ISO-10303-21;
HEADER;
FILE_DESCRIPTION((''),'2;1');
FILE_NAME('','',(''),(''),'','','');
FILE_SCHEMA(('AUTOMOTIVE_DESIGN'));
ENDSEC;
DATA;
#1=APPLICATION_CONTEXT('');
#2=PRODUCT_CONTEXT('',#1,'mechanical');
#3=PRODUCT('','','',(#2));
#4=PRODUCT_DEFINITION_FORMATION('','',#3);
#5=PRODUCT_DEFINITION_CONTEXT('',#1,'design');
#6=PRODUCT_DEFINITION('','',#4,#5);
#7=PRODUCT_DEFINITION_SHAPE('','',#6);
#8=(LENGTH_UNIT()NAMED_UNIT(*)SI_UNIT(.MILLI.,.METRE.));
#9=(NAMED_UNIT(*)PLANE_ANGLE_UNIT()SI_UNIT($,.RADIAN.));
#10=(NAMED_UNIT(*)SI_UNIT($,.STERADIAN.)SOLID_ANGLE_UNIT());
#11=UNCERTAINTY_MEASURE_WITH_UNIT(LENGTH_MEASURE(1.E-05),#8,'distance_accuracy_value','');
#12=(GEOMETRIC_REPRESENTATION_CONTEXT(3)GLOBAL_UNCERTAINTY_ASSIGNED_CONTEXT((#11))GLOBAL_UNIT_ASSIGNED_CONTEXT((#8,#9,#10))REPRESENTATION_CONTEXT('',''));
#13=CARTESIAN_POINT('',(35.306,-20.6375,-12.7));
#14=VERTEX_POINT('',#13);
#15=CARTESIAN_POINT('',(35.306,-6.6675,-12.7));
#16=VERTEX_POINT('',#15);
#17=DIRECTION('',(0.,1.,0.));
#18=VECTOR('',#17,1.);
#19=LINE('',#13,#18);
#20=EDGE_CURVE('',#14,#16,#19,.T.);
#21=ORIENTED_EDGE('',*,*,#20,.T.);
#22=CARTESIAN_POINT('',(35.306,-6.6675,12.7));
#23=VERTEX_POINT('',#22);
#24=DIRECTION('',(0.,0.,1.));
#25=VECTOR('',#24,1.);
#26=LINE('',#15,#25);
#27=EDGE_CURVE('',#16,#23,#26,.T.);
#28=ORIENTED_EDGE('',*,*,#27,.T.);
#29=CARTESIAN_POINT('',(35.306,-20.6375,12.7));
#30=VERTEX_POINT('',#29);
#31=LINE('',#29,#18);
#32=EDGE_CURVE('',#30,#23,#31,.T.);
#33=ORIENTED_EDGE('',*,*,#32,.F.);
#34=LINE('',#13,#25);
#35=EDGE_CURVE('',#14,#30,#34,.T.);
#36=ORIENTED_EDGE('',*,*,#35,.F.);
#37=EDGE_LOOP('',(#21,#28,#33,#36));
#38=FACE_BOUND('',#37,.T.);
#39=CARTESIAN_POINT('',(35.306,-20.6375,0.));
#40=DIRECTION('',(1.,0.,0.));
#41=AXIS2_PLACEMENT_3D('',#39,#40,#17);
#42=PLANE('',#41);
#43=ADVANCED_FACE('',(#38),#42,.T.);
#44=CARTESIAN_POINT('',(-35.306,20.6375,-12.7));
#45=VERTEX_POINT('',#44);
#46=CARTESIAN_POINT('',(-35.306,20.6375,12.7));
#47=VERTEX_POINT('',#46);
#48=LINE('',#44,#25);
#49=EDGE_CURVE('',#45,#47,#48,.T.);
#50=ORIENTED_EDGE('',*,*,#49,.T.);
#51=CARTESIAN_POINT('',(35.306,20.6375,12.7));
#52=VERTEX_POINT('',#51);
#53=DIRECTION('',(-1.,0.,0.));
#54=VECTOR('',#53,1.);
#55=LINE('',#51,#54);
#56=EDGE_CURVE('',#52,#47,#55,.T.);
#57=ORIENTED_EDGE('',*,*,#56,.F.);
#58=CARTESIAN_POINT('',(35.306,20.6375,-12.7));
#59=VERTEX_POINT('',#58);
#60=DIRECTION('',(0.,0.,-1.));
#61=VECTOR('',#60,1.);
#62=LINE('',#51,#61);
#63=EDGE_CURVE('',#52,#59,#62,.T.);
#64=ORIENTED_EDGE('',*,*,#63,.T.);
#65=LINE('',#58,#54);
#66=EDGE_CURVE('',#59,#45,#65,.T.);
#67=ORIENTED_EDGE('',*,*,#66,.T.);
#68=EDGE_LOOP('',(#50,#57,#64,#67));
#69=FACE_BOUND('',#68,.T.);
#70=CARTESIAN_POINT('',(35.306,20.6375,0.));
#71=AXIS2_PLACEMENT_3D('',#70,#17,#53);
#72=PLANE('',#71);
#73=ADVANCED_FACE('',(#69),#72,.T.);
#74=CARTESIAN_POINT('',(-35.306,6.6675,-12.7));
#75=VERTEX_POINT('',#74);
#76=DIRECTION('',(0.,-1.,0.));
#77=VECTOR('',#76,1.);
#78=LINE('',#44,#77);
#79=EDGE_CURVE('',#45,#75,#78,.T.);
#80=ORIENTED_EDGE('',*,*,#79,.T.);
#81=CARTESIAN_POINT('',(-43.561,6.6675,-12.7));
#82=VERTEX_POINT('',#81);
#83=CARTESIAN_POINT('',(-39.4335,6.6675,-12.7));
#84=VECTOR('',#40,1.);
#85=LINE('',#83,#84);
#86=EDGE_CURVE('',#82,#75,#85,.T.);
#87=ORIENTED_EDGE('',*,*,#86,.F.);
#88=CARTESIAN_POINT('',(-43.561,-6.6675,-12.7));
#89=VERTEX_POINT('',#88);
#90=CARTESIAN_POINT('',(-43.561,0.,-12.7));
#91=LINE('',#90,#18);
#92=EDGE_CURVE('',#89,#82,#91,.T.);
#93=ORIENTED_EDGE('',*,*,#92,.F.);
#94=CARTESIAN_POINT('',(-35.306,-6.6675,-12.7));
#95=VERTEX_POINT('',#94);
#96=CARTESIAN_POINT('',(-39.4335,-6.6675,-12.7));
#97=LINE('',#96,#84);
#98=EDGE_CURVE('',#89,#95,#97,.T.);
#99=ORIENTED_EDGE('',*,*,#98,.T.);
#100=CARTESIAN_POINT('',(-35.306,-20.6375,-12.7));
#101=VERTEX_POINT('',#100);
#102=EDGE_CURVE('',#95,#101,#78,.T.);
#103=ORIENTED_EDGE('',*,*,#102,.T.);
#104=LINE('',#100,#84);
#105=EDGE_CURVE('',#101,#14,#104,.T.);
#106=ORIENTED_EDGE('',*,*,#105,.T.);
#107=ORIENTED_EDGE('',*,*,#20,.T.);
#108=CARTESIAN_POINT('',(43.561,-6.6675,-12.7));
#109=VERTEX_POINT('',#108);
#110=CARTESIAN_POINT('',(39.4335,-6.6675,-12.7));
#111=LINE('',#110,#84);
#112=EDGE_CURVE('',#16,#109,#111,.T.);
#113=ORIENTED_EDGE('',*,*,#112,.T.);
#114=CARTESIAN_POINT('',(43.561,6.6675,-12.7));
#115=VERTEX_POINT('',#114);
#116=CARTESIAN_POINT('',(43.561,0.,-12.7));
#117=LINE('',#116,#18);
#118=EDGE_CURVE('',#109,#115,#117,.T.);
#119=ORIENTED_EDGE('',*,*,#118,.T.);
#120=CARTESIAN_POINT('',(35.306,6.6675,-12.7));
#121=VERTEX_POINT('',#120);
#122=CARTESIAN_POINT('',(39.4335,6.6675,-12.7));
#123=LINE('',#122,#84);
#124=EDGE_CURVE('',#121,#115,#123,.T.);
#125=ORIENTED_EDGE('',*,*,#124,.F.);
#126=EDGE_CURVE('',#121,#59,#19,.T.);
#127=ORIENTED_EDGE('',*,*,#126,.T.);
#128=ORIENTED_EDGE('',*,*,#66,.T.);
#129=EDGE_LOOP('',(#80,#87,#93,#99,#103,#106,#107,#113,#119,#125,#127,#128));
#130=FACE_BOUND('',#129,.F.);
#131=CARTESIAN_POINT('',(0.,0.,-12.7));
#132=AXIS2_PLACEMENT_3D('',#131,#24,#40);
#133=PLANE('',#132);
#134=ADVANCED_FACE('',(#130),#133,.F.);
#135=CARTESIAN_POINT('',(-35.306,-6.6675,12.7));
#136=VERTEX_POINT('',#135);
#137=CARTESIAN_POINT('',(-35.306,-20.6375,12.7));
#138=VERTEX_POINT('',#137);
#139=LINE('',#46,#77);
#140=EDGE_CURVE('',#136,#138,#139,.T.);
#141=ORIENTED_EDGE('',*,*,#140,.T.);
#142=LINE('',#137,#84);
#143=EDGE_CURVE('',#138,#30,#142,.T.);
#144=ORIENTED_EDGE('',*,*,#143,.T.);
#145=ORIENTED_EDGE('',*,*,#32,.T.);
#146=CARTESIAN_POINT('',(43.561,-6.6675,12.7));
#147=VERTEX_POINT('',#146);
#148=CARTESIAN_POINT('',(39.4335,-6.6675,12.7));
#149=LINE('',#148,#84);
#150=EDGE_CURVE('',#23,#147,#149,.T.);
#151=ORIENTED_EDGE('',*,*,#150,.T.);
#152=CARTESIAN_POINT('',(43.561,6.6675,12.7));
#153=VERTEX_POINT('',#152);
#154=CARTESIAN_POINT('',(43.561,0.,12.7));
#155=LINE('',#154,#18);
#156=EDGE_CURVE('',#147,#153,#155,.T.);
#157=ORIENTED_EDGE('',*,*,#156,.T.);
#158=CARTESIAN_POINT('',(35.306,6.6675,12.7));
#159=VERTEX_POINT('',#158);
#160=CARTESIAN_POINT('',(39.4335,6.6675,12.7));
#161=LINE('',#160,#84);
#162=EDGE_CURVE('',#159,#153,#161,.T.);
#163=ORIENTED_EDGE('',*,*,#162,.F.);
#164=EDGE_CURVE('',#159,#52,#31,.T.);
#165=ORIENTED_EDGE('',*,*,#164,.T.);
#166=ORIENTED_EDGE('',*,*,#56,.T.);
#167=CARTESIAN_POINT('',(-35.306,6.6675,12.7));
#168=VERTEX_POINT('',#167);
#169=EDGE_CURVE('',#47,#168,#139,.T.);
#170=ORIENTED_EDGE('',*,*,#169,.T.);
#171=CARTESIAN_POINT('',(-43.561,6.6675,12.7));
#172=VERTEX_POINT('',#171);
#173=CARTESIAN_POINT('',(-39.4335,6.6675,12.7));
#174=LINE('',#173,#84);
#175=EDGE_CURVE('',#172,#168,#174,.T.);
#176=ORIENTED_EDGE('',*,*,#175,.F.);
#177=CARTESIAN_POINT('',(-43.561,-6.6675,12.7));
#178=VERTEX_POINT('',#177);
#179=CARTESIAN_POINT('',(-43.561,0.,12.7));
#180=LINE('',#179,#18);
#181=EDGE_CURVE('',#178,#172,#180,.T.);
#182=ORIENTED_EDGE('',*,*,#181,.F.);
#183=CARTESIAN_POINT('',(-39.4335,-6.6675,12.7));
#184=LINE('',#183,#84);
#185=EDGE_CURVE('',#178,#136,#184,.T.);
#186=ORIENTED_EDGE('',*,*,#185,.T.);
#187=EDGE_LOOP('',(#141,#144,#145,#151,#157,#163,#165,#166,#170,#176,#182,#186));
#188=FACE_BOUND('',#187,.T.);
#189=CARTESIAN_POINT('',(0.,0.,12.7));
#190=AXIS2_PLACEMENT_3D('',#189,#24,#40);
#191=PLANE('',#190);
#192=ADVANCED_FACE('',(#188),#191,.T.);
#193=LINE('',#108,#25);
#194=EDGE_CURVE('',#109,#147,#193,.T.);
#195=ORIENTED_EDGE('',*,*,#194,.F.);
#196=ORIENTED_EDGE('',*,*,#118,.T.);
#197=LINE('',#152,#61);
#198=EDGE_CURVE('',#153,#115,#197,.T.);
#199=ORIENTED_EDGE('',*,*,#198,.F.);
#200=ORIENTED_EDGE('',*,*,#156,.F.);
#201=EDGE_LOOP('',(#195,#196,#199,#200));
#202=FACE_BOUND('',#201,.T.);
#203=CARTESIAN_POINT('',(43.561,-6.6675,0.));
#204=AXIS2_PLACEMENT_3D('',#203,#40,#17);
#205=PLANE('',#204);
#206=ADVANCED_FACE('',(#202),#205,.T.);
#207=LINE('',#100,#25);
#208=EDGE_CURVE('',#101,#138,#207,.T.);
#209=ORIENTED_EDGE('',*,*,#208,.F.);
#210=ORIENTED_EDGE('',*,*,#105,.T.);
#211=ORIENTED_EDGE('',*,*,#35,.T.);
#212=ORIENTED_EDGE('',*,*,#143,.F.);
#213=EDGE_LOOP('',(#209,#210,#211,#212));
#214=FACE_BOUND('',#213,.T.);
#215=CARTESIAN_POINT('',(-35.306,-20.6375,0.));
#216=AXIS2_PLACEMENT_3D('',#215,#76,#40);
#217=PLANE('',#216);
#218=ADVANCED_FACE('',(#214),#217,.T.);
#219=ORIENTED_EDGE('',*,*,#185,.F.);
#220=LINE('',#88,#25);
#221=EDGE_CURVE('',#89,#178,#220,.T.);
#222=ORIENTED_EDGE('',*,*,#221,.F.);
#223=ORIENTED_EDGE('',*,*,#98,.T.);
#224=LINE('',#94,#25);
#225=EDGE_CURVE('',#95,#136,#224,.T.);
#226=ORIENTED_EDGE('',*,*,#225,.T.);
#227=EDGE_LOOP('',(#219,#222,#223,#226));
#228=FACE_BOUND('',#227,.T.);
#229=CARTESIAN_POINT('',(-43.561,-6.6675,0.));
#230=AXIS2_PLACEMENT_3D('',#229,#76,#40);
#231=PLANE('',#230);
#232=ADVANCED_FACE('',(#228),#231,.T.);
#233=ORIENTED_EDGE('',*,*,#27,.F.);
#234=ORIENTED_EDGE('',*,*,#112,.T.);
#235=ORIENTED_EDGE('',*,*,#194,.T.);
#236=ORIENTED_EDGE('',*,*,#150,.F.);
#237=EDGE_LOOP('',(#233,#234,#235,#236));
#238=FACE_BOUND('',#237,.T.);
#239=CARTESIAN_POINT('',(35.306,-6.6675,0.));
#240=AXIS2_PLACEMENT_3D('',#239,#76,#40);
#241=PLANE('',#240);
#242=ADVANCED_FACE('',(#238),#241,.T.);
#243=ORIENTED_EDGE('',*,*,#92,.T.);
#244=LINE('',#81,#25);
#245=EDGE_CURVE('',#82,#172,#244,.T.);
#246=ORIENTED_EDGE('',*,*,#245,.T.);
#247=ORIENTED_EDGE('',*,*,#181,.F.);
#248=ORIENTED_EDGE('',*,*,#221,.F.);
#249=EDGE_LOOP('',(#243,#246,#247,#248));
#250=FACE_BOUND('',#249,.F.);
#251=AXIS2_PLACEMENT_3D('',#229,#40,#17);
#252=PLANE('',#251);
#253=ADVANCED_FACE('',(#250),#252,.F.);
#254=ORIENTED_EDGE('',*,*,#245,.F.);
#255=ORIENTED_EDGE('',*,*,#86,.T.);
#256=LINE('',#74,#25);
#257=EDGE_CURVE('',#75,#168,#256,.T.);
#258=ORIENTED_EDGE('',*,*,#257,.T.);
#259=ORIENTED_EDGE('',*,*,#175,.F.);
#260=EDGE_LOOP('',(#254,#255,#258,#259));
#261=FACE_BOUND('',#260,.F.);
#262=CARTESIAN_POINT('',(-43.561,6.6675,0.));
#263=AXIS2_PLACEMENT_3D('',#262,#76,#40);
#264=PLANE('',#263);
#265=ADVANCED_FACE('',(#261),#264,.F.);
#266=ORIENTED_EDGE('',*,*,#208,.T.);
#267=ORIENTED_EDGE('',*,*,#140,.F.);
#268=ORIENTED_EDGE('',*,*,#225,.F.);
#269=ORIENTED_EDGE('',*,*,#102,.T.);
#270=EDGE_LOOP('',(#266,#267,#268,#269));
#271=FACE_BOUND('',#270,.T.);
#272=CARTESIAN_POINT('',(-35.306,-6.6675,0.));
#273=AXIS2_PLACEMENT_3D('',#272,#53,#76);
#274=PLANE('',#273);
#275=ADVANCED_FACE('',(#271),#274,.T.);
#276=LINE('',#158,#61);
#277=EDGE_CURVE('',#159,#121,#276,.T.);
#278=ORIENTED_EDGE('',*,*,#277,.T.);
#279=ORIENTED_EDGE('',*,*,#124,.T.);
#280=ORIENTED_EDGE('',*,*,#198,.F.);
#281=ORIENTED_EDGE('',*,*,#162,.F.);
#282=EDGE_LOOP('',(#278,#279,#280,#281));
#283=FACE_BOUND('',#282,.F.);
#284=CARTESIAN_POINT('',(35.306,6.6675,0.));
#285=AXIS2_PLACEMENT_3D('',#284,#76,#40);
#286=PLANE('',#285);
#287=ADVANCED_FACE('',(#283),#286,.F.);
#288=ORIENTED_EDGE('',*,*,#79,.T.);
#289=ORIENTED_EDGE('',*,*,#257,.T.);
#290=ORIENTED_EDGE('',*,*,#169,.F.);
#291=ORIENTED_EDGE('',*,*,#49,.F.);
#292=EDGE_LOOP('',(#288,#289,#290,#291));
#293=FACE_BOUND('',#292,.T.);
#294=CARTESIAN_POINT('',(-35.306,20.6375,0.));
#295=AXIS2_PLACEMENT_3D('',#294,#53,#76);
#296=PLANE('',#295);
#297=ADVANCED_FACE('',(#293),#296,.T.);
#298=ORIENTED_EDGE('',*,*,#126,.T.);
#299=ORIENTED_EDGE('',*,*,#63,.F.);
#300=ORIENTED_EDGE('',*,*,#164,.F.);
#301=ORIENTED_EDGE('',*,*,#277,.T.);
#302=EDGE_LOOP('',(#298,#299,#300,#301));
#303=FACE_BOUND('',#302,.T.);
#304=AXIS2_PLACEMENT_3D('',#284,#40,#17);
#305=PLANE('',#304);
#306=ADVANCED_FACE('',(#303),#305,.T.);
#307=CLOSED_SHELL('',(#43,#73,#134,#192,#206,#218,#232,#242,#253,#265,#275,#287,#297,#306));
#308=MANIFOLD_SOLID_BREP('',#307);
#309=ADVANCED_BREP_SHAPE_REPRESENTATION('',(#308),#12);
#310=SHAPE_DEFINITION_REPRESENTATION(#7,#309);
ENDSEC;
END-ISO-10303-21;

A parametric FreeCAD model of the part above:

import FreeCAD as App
import Part
import Sketcher

V = App.Vector
Q = App.Units.Quantity

doc = App.newDocument("Part")
body = doc.addObject("PartDesign::Body", "Body")

# Sketch on XY plane
sketch1 = doc.addObject("Sketcher::SketchObject", "Sketch")
body.addObject(sketch1)
sketch1.AttachmentSupport = (doc.XY_Plane, [""])
sketch1.MapMode = "FlatFace"
sketch1.addGeometry([
    Part.LineSegment(V(35, 21, 0), V(-35, 21, 0)),  # 0
    Part.LineSegment(V(-35, 21, 0), V(-35, 7, 0)),  # 1
    Part.LineSegment(V(-35, 7, 0), V(-44, 7, 0)),  # 2
    Part.LineSegment(V(-44, 7, 0), V(-44, -7, 0)),  # 3
    Part.LineSegment(V(-44, -7, 0), V(-35, -7, 0)),  # 4
    Part.LineSegment(V(-35, -7, 0), V(-35, -21, 0)),  # 5
    Part.LineSegment(V(-35, -21, 0), V(35, -21, 0)),  # 6
    Part.LineSegment(V(35, -21, 0), V(35, -7, 0)),  # 7
    Part.LineSegment(V(35, -7, 0), V(44, -7, 0)),  # 8
    Part.LineSegment(V(44, -7, 0), V(44, 7, 0)),  # 9
    Part.LineSegment(V(44, 7, 0), V(35, 7, 0)),  # 10
    Part.LineSegment(V(35, 7, 0), V(35, 21, 0)),  # 11
], False)
sketch1.addConstraint([
    Sketcher.Constraint("Coincident", 0, 2, 1, 1),
    Sketcher.Constraint("Coincident", 1, 2, 2, 1),
    Sketcher.Constraint("Coincident", 2, 2, 3, 1),
    Sketcher.Constraint("Coincident", 3, 2, 4, 1),
    Sketcher.Constraint("Coincident", 4, 2, 5, 1),
    Sketcher.Constraint("Coincident", 5, 2, 6, 1),
    Sketcher.Constraint("Coincident", 6, 2, 7, 1),
    Sketcher.Constraint("Coincident", 7, 2, 8, 1),
    Sketcher.Constraint("Coincident", 8, 2, 9, 1),
    Sketcher.Constraint("Coincident", 9, 2, 10, 1),
    Sketcher.Constraint("Coincident", 10, 2, 11, 1),
    Sketcher.Constraint("Coincident", 11, 2, 0, 1),
    Sketcher.Constraint("Horizontal", 0),
    Sketcher.Constraint("Vertical", 1),
    Sketcher.Constraint("Horizontal", 2),
    Sketcher.Constraint("Vertical", 3),
    Sketcher.Constraint("Horizontal", 4),
    Sketcher.Constraint("Vertical", 5),
    Sketcher.Constraint("Horizontal", 6),
    Sketcher.Constraint("Vertical", 7),
    Sketcher.Constraint("Horizontal", 8),
    Sketcher.Constraint("Vertical", 9),
    Sketcher.Constraint("Horizontal", 10),
    Sketcher.Constraint("Vertical", 11),
    Sketcher.Constraint("Symmetric", 0, 2, 6, 2, -1, 1),
    Sketcher.Constraint("Symmetric", 2, 2, 8, 2, -1, 1),
    Sketcher.Constraint("Symmetric", 4, 2, 10, 2, -1, 1),
    Sketcher.Constraint("Symmetric", 4, 2, 7, 2, -2),
    Sketcher.Constraint("DistanceX", 0, 2, 0, 1, Q("2.78 in")),
    Sketcher.Constraint("DistanceY", 1, 2, 1, 1, Q("0.55 in")),
    Sketcher.Constraint("DistanceX", 2, 2, 2, 1, Q("0.325 in")),
    Sketcher.Constraint("DistanceY", 3, 2, 3, 1, Q("0.525 in")),
])
pad1 = doc.addObject("PartDesign::Pad", "Pad")
body.addObject(pad1)
pad1.Profile = sketch1
pad1.Length = Q("1 in")
pad1.Midplane = True

doc.recompute()
